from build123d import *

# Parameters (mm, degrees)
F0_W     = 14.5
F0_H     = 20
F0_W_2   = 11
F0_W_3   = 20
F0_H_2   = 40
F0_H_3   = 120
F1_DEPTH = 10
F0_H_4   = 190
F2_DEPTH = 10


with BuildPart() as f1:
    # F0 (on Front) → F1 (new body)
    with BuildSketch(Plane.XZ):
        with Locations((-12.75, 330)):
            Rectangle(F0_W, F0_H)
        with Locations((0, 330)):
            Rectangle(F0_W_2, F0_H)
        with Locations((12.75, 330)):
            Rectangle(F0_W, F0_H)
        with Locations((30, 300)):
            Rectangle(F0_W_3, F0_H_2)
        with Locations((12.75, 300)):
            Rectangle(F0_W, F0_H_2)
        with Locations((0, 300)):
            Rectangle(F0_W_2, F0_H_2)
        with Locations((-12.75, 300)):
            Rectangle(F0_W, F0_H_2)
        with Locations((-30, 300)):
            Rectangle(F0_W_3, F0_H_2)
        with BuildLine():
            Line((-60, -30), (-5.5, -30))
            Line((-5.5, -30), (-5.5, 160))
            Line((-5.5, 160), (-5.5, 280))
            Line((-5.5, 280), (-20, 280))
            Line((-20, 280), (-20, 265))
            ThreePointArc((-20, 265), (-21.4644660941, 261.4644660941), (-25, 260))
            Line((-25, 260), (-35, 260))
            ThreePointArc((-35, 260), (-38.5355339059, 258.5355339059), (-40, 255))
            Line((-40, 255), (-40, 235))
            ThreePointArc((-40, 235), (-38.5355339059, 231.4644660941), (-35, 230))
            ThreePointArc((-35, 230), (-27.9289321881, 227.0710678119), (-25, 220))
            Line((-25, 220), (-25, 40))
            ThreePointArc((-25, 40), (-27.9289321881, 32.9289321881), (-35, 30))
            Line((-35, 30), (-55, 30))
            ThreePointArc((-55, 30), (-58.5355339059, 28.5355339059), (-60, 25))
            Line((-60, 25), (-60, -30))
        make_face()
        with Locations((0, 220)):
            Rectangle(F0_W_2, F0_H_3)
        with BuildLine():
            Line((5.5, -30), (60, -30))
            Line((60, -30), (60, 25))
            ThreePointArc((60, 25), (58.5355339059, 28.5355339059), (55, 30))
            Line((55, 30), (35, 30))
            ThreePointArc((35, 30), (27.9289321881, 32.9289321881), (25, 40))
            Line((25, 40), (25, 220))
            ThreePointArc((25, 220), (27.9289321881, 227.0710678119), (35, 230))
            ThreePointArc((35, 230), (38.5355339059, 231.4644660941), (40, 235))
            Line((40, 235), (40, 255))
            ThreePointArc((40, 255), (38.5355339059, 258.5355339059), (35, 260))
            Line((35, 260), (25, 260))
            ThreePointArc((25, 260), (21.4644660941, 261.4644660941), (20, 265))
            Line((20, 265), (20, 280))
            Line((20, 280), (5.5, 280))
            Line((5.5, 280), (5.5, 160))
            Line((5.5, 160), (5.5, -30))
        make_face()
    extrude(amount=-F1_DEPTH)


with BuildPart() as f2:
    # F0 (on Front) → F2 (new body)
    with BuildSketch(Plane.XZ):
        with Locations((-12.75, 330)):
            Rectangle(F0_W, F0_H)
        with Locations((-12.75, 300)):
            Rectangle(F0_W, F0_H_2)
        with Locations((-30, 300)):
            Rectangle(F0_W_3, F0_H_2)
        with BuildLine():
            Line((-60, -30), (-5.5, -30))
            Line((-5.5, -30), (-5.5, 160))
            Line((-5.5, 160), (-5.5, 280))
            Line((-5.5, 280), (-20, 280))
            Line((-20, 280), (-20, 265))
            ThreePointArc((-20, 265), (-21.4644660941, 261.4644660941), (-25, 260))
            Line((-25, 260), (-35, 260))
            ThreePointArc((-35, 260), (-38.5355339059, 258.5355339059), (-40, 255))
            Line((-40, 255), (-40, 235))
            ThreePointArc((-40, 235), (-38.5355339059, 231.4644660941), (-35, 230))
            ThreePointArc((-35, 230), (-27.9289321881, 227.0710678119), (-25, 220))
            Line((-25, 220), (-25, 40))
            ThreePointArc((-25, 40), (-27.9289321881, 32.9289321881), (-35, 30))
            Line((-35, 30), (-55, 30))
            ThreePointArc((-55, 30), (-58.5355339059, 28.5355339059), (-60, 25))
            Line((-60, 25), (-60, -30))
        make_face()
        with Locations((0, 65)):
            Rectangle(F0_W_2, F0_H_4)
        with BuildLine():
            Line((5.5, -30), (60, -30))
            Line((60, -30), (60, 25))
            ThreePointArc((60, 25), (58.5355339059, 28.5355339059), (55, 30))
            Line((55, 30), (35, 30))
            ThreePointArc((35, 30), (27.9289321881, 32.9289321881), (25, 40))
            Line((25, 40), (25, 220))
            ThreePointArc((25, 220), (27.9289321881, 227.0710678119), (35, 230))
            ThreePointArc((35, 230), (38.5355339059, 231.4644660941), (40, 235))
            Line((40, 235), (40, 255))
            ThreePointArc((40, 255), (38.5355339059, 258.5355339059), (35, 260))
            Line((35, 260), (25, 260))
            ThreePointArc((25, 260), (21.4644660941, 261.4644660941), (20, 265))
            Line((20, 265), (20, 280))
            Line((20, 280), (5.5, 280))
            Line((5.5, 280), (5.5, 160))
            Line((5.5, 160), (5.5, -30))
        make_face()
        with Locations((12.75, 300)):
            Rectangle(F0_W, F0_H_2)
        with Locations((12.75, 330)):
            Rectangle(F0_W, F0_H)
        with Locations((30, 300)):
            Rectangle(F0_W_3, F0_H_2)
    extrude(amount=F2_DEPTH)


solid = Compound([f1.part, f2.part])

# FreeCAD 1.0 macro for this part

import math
import FreeCAD as App
import Part
import Sketcher

V = App.Vector

doc = App.newDocument("Part")
params = doc.addObject("Spreadsheet::Sheet", "Params")
for row, (alias, value) in enumerate([
    ("sketch1_radius", "5 mm"),
    ("sketch1_radius2", "10 mm"),
    ("sketch1_width", "11 mm"),
    ("sketch1_width2", "40 mm"),
    ("sketch1_height", "15 mm"),
    ("pad1_length", "10 mm"),
    ("sketch2_radius", "5 mm"),
    ("sketch2_radius2", "10 mm"),
    ("sketch2_width", "120 mm"),
    ("sketch2_width2", "11 mm"),
    ("sketch2_height", "40 mm"),
    ("pad2_length", "10 mm"),
], start=1):
    params.set(f"A{row}", alias)
    params.set(f"B{row}", "=" + value)
    params.setAlias(f"B{row}", alias)

body = doc.addObject("PartDesign::Body", "Body")

# Sketch on XZ plane
sketch1 = body.newObject("Sketcher::SketchObject", "Sketch")
sketch1.AttachmentSupport = (doc.getObject("XZ_Plane"), [""])
sketch1.MapMode = "FlatFace"
sketch1.addGeometry([
    Part.LineSegment(V(-20, 340, 0), V(-20, 320, 0)),  # 0
    Part.LineSegment(V(-20, 320, 0), V(-40, 320, 0)),  # 1
    Part.LineSegment(V(-40, 320, 0), V(-40, 280, 0)),  # 2
    Part.LineSegment(V(-40, 280, 0), V(-20, 280, 0)),  # 3
    Part.LineSegment(V(-20, 280, 0), V(-20, 265, 0)),  # 4
    Part.ArcOfCircle(Part.Circle(V(-25, 265, 0), V(0, 0, 1), 5), math.radians(-90), math.radians(0)),  # 5
    Part.LineSegment(V(-25, 260, 0), V(-35, 260, 0)),  # 6
    Part.ArcOfCircle(Part.Circle(V(-35, 255, 0), V(0, 0, 1), 5), math.radians(90), math.radians(180)),  # 7
    Part.LineSegment(V(-40, 255, 0), V(-40, 235, 0)),  # 8
    Part.ArcOfCircle(Part.Circle(V(-35, 235, 0), V(0, 0, 1), 5), math.radians(180), math.radians(270)),  # 9
    Part.ArcOfCircle(Part.Circle(V(-35, 220, 0), V(0, 0, 1), 10), math.radians(0), math.radians(90)),  # 10
    Part.LineSegment(V(-25, 220, 0), V(-25, 40, 0)),  # 11
    Part.ArcOfCircle(Part.Circle(V(-35, 40, 0), V(0, 0, 1), 10), math.radians(-90), math.radians(0)),  # 12
    Part.LineSegment(V(-35, 30, 0), V(-55, 30, 0)),  # 13
    Part.ArcOfCircle(Part.Circle(V(-55, 25, 0), V(0, 0, 1), 5), math.radians(90), math.radians(180)),  # 14
    Part.LineSegment(V(-60, 25, 0), V(-60, -30, 0)),  # 15
    Part.LineSegment(V(-60, -30, 0), V(-6, -30, 0)),  # 16
    Part.LineSegment(V(-6, -30, 0), V(-6, 160, 0)),  # 17
    Part.LineSegment(V(-6, 160, 0), V(6, 160, 0)),  # 18
    Part.LineSegment(V(6, 160, 0), V(6, -30, 0)),  # 19
    Part.LineSegment(V(6, -30, 0), V(60, -30, 0)),  # 20
    Part.LineSegment(V(60, -30, 0), V(60, 25, 0)),  # 21
    Part.ArcOfCircle(Part.Circle(V(55, 25, 0), V(0, 0, 1), 5), math.radians(0), math.radians(90)),  # 22
    Part.LineSegment(V(55, 30, 0), V(35, 30, 0)),  # 23
    Part.ArcOfCircle(Part.Circle(V(35, 40, 0), V(0, 0, 1), 10), math.radians(180), math.radians(270)),  # 24
    Part.LineSegment(V(25, 40, 0), V(25, 220, 0)),  # 25
    Part.ArcOfCircle(Part.Circle(V(35, 220, 0), V(0, 0, 1), 10), math.radians(90), math.radians(180)),  # 26
    Part.ArcOfCircle(Part.Circle(V(35, 235, 0), V(0, 0, 1), 5), math.radians(-90), math.radians(0)),  # 27
    Part.LineSegment(V(40, 235, 0), V(40, 255, 0)),  # 28
    Part.ArcOfCircle(Part.Circle(V(35, 255, 0), V(0, 0, 1), 5), math.radians(0), math.radians(90)),  # 29
    Part.LineSegment(V(35, 260, 0), V(25, 260, 0)),  # 30
    Part.ArcOfCircle(Part.Circle(V(25, 265, 0), V(0, 0, 1), 5), math.radians(180), math.radians(270)),  # 31
    Part.LineSegment(V(20, 265, 0), V(20, 280, 0)),  # 32
    Part.LineSegment(V(20, 280, 0), V(40, 280, 0)),  # 33
    Part.LineSegment(V(40, 280, 0), V(40, 320, 0)),  # 34
    Part.LineSegment(V(40, 320, 0), V(20, 320, 0)),  # 35
    Part.LineSegment(V(20, 320, 0), V(20, 340, 0)),  # 36
    Part.LineSegment(V(20, 340, 0), V(-20, 340, 0)),  # 37
], False)
sketch1.addConstraint([
    Sketcher.Constraint("Coincident", 0, 2, 1, 1),
    Sketcher.Constraint("Coincident", 1, 2, 2, 1),
    Sketcher.Constraint("Coincident", 2, 2, 3, 1),
    Sketcher.Constraint("Coincident", 3, 2, 4, 1),
    Sketcher.Constraint("Tangent", 4, 2, 5, 2),
    Sketcher.Constraint("Tangent", 5, 1, 6, 1),
    Sketcher.Constraint("Tangent", 6, 2, 7, 1),
    Sketcher.Constraint("Tangent", 7, 2, 8, 1),
    Sketcher.Constraint("Tangent", 8, 2, 9, 1),
    Sketcher.Constraint("Tangent", 9, 2, 10, 2),
    Sketcher.Constraint("Tangent", 10, 1, 11, 1),
    Sketcher.Constraint("Tangent", 11, 2, 12, 2),
    Sketcher.Constraint("Tangent", 12, 1, 13, 1),
    Sketcher.Constraint("Tangent", 13, 2, 14, 1),
    Sketcher.Constraint("Tangent", 14, 2, 15, 1),
    Sketcher.Constraint("Coincident", 15, 2, 16, 1),
    Sketcher.Constraint("Coincident", 16, 2, 17, 1),
    Sketcher.Constraint("Coincident", 17, 2, 18, 1),
    Sketcher.Constraint("Coincident", 18, 2, 19, 1),
    Sketcher.Constraint("Coincident", 19, 2, 20, 1),
    Sketcher.Constraint("Coincident", 20, 2, 21, 1),
    Sketcher.Constraint("Tangent", 21, 2, 22, 1),
    Sketcher.Constraint("Tangent", 22, 2, 23, 1),
    Sketcher.Constraint("Tangent", 23, 2, 24, 2),
    Sketcher.Constraint("Tangent", 24, 1, 25, 1),
    Sketcher.Constraint("Tangent", 25, 2, 26, 2),
    Sketcher.Constraint("Tangent", 26, 1, 27, 1),
    Sketcher.Constraint("Tangent", 27, 2, 28, 1),
    Sketcher.Constraint("Tangent", 28, 2, 29, 1),
    Sketcher.Constraint("Tangent", 29, 2, 30, 1),
    Sketcher.Constraint("Tangent", 30, 2, 31, 2),
    Sketcher.Constraint("Tangent", 31, 1, 32, 1),
    Sketcher.Constraint("Coincident", 32, 2, 33, 1),
    Sketcher.Constraint("Coincident", 33, 2, 34, 1),
    Sketcher.Constraint("Coincident", 34, 2, 35, 1),
    Sketcher.Constraint("Coincident", 35, 2, 36, 1),
    Sketcher.Constraint("Coincident", 36, 2, 37, 1),
    Sketcher.Constraint("Coincident", 37, 2, 0, 1),
    Sketcher.Constraint("Vertical", 0),
    Sketcher.Constraint("Horizontal", 1),
    Sketcher.Constraint("Vertical", 2),
    Sketcher.Constraint("Horizontal", 3),
    Sketcher.Constraint("Vertical", 4),
    Sketcher.Constraint("Horizontal", 6),
    Sketcher.Constraint("Vertical", 8),
    Sketcher.Constraint("Vertical", 11),
    Sketcher.Constraint("Horizontal", 13),
    Sketcher.Constraint("Vertical", 15),
    Sketcher.Constraint("Horizontal", 16),
    Sketcher.Constraint("Vertical", 17),
    Sketcher.Constraint("Horizontal", 18),
    Sketcher.Constraint("Vertical", 19),
    Sketcher.Constraint("Horizontal", 20),
    Sketcher.Constraint("Vertical", 21),
    Sketcher.Constraint("Horizontal", 23),
    Sketcher.Constraint("Vertical", 25),
    Sketcher.Constraint("Vertical", 28),
    Sketcher.Constraint("Horizontal", 30),
    Sketcher.Constraint("Vertical", 32),
    Sketcher.Constraint("Horizontal", 33),
    Sketcher.Constraint("Vertical", 34),
    Sketcher.Constraint("Horizontal", 35),
    Sketcher.Constraint("Vertical", 36),
    Sketcher.Constraint("Horizontal", 37),
    Sketcher.Constraint("Equal", 5, 7),
    Sketcher.Constraint("Equal", 7, 9),
    Sketcher.Constraint("Equal", 10, 12),
    Sketcher.Constraint("Equal", 9, 14),
    Sketcher.Constraint("Equal", 14, 22),
    Sketcher.Constraint("Equal", 12, 24),
    Sketcher.Constraint("Equal", 24, 26),
    Sketcher.Constraint("Equal", 22, 27),
    Sketcher.Constraint("Equal", 27, 29),
    Sketcher.Constraint("Equal", 29, 31),
    Sketcher.Constraint("Symmetric", 14, 3, 22, 3, -2),
    Sketcher.Constraint("Symmetric", 10, 3, 26, 3, -2),
    Sketcher.Constraint("Symmetric", 7, 3, 29, 3, -2),
    Sketcher.Constraint("Symmetric", 16, 2, 19, 2, -2),
    Sketcher.Constraint("Symmetric", 3, 2, 32, 2, -2),
    Sketcher.Constraint("Symmetric", 1, 2, 34, 2, -2),
    Sketcher.Constraint("Vertical", 9, 3, 10, 3),
    Sketcher.Constraint("Vertical", 0, 2, 3, 2),
    Sketcher.Constraint("Vertical", 2, 2, 7, 2),
    Sketcher.Constraint("Vertical", 5, 1, 10, 1),
    Sketcher.Constraint("Vertical", 32, 2, 35, 2),
    Sketcher.Constraint("Equal", 3, 13),
    Sketcher.Constraint("Equal", 35, 0),
    Sketcher.Constraint("Equal", 37, 2),
    Sketcher.Constraint("Equal", 0, 8),
    Sketcher.Constraint("Radius", 5, 5.0),
    Sketcher.Constraint("Radius", 10, 10.0),
    Sketcher.Constraint("DistanceX", 18, 1, 18, 2, 11.0),
    Sketcher.Constraint("DistanceX", 37, 2, 37, 1, 40.0),
    Sketcher.Constraint("DistanceY", 4, 2, 4, 1, 15.0),
    Sketcher.Constraint("DistanceY", 11, 2, 11, 1, 180.0),
    Sketcher.Constraint("DistanceY", 15, 2, 15, 1, 55.0),
    Sketcher.Constraint("DistanceY", 17, 1, 17, 2, 190.0),
    Sketcher.Constraint("DistanceY", -1, 1, 5, 3, 265.0),
])
sketch1.setExpression("Constraints[89]", "Params.sketch1_radius")
sketch1.setExpression("Constraints[90]", "Params.sketch1_radius2")
sketch1.setExpression("Constraints[91]", "Params.sketch1_width")
sketch1.setExpression("Constraints[92]", "Params.sketch1_width2")
sketch1.setExpression("Constraints[93]", "Params.sketch1_height")
pad1 = body.newObject("PartDesign::Pad", "Pad")
pad1.Profile = sketch1
pad1.setExpression("Length", "Params.pad1_length")
pad1.Reversed = True
body2 = doc.addObject("PartDesign::Body", "Body001")

# Sketch on XZ plane
sketch2 = body2.newObject("Sketcher::SketchObject", "Sketch001")
sketch2.AttachmentSupport = (doc.getObject("XZ_Plane001"), [""])
sketch2.MapMode = "FlatFace"
sketch2.addGeometry([
    Part.LineSegment(V(-20, 340, 0), V(-20, 320, 0)),  # 0
    Part.LineSegment(V(-20, 320, 0), V(-40, 320, 0)),  # 1
    Part.LineSegment(V(-40, 320, 0), V(-40, 280, 0)),  # 2
    Part.LineSegment(V(-40, 280, 0), V(-20, 280, 0)),  # 3
    Part.LineSegment(V(-20, 280, 0), V(-20, 265, 0)),  # 4
    Part.ArcOfCircle(Part.Circle(V(-25, 265, 0), V(0, 0, 1), 5), math.radians(-90), math.radians(0)),  # 5
    Part.LineSegment(V(-25, 260, 0), V(-35, 260, 0)),  # 6
    Part.ArcOfCircle(Part.Circle(V(-35, 255, 0), V(0, 0, 1), 5), math.radians(90), math.radians(180)),  # 7
    Part.LineSegment(V(-40, 255, 0), V(-40, 235, 0)),  # 8
    Part.ArcOfCircle(Part.Circle(V(-35, 235, 0), V(0, 0, 1), 5), math.radians(180), math.radians(270)),  # 9
    Part.ArcOfCircle(Part.Circle(V(-35, 220, 0), V(0, 0, 1), 10), math.radians(0), math.radians(90)),  # 10
    Part.LineSegment(V(-25, 220, 0), V(-25, 40, 0)),  # 11
    Part.ArcOfCircle(Part.Circle(V(-35, 40, 0), V(0, 0, 1), 10), math.radians(-90), math.radians(0)),  # 12
    Part.LineSegment(V(-35, 30, 0), V(-55, 30, 0)),  # 13
    Part.ArcOfCircle(Part.Circle(V(-55, 25, 0), V(0, 0, 1), 5), math.radians(90), math.radians(180)),  # 14
    Part.LineSegment(V(-60, 25, 0), V(-60, -30, 0)),  # 15
    Part.LineSegment(V(-60, -30, 0), V(60, -30, 0)),  # 16
    Part.LineSegment(V(60, -30, 0), V(60, 25, 0)),  # 17
    Part.ArcOfCircle(Part.Circle(V(55, 25, 0), V(0, 0, 1), 5), math.radians(0), math.radians(90)),  # 18
    Part.LineSegment(V(55, 30, 0), V(35, 30, 0)),  # 19
    Part.ArcOfCircle(Part.Circle(V(35, 40, 0), V(0, 0, 1), 10), math.radians(180), math.radians(270)),  # 20
    Part.LineSegment(V(25, 40, 0), V(25, 220, 0)),  # 21
    Part.ArcOfCircle(Part.Circle(V(35, 220, 0), V(0, 0, 1), 10), math.radians(90), math.radians(180)),  # 22
    Part.ArcOfCircle(Part.Circle(V(35, 235, 0), V(0, 0, 1), 5), math.radians(-90), math.radians(0)),  # 23
    Part.LineSegment(V(40, 235, 0), V(40, 255, 0)),  # 24
    Part.ArcOfCircle(Part.Circle(V(35, 255, 0), V(0, 0, 1), 5), math.radians(0), math.radians(90)),  # 25
    Part.LineSegment(V(35, 260, 0), V(25, 260, 0)),  # 26
    Part.ArcOfCircle(Part.Circle(V(25, 265, 0), V(0, 0, 1), 5), math.radians(180), math.radians(270)),  # 27
    Part.LineSegment(V(20, 265, 0), V(20, 280, 0)),  # 28
    Part.LineSegment(V(20, 280, 0), V(40, 280, 0)),  # 29
    Part.LineSegment(V(40, 280, 0), V(40, 320, 0)),  # 30
    Part.LineSegment(V(40, 320, 0), V(20, 320, 0)),  # 31
    Part.LineSegment(V(20, 320, 0), V(20, 340, 0)),  # 32
    Part.LineSegment(V(20, 340, 0), V(6, 340, 0)),  # 33
    Part.LineSegment(V(6, 340, 0), V(6, 160, 0)),  # 34
    Part.LineSegment(V(6, 160, 0), V(-6, 160, 0)),  # 35
    Part.LineSegment(V(-6, 160, 0), V(-6, 340, 0)),  # 36
    Part.LineSegment(V(-6, 340, 0), V(-20, 340, 0)),  # 37
], False)
sketch2.addConstraint([
    Sketcher.Constraint("Coincident", 0, 2, 1, 1),
    Sketcher.Constraint("Coincident", 1, 2, 2, 1),
    Sketcher.Constraint("Coincident", 2, 2, 3, 1),
    Sketcher.Constraint("Coincident", 3, 2, 4, 1),
    Sketcher.Constraint("Tangent", 4, 2, 5, 2),
    Sketcher.Constraint("Tangent", 5, 1, 6, 1),
    Sketcher.Constraint("Tangent", 6, 2, 7, 1),
    Sketcher.Constraint("Tangent", 7, 2, 8, 1),
    Sketcher.Constraint("Tangent", 8, 2, 9, 1),
    Sketcher.Constraint("Tangent", 9, 2, 10, 2),
    Sketcher.Constraint("Tangent", 10, 1, 11, 1),
    Sketcher.Constraint("Tangent", 11, 2, 12, 2),
    Sketcher.Constraint("Tangent", 12, 1, 13, 1),
    Sketcher.Constraint("Tangent", 13, 2, 14, 1),
    Sketcher.Constraint("Tangent", 14, 2, 15, 1),
    Sketcher.Constraint("Coincident", 15, 2, 16, 1),
    Sketcher.Constraint("Coincident", 16, 2, 17, 1),
    Sketcher.Constraint("Tangent", 17, 2, 18, 1),
    Sketcher.Constraint("Tangent", 18, 2, 19, 1),
    Sketcher.Constraint("Tangent", 19, 2, 20, 2),
    Sketcher.Constraint("Tangent", 20, 1, 21, 1),
    Sketcher.Constraint("Tangent", 21, 2, 22, 2),
    Sketcher.Constraint("Tangent", 22, 1, 23, 1),
    Sketcher.Constraint("Tangent", 23, 2, 24, 1),
    Sketcher.Constraint("Tangent", 24, 2, 25, 1),
    Sketcher.Constraint("Tangent", 25, 2, 26, 1),
    Sketcher.Constraint("Tangent", 26, 2, 27, 2),
    Sketcher.Constraint("Tangent", 27, 1, 28, 1),
    Sketcher.Constraint("Coincident", 28, 2, 29, 1),
    Sketcher.Constraint("Coincident", 29, 2, 30, 1),
    Sketcher.Constraint("Coincident", 30, 2, 31, 1),
    Sketcher.Constraint("Coincident", 31, 2, 32, 1),
    Sketcher.Constraint("Coincident", 32, 2, 33, 1),
    Sketcher.Constraint("Coincident", 33, 2, 34, 1),
    Sketcher.Constraint("Coincident", 34, 2, 35, 1),
    Sketcher.Constraint("Coincident", 35, 2, 36, 1),
    Sketcher.Constraint("Coincident", 36, 2, 37, 1),
    Sketcher.Constraint("Coincident", 37, 2, 0, 1),
    Sketcher.Constraint("Vertical", 0),
    Sketcher.Constraint("Horizontal", 1),
    Sketcher.Constraint("Vertical", 2),
    Sketcher.Constraint("Horizontal", 3),
    Sketcher.Constraint("Vertical", 4),
    Sketcher.Constraint("Horizontal", 6),
    Sketcher.Constraint("Vertical", 8),
    Sketcher.Constraint("Vertical", 11),
    Sketcher.Constraint("Horizontal", 13),
    Sketcher.Constraint("Vertical", 15),
    Sketcher.Constraint("Horizontal", 16),
    Sketcher.Constraint("Vertical", 17),
    Sketcher.Constraint("Horizontal", 19),
    Sketcher.Constraint("Vertical", 21),
    Sketcher.Constraint("Vertical", 24),
    Sketcher.Constraint("Horizontal", 26),
    Sketcher.Constraint("Vertical", 28),
    Sketcher.Constraint("Horizontal", 29),
    Sketcher.Constraint("Vertical", 30),
    Sketcher.Constraint("Horizontal", 31),
    Sketcher.Constraint("Vertical", 32),
    Sketcher.Constraint("Horizontal", 33),
    Sketcher.Constraint("Vertical", 34),
    Sketcher.Constraint("Horizontal", 35),
    Sketcher.Constraint("Vertical", 36),
    Sketcher.Constraint("Horizontal", 37),
    Sketcher.Constraint("Equal", 5, 7),
    Sketcher.Constraint("Equal", 7, 9),
    Sketcher.Constraint("Equal", 10, 12),
    Sketcher.Constraint("Equal", 9, 14),
    Sketcher.Constraint("Equal", 14, 18),
    Sketcher.Constraint("Equal", 12, 20),
    Sketcher.Constraint("Equal", 20, 22),
    Sketcher.Constraint("Equal", 18, 23),
    Sketcher.Constraint("Equal", 23, 25),
    Sketcher.Constraint("Equal", 25, 27),
    Sketcher.Constraint("Symmetric", 14, 3, 18, 3, -2),
    Sketcher.Constraint("Symmetric", 10, 3, 22, 3, -2),
    Sketcher.Constraint("Symmetric", 7, 3, 25, 3, -2),
    Sketcher.Constraint("Symmetric", 3, 2, 28, 2, -2),
    Sketcher.Constraint("Symmetric", 1, 2, 30, 2, -2),
    Sketcher.Constraint("Symmetric", 33, 2, 36, 2, -2),
    Sketcher.Constraint("Vertical", 9, 3, 10, 3),
    Sketcher.Constraint("Vertical", 0, 2, 3, 2),
    Sketcher.Constraint("Vertical", 2, 2, 7, 2),
    Sketcher.Constraint("Vertical", 5, 1, 10, 1),
    Sketcher.Constraint("Vertical", 28, 2, 31, 2),
    Sketcher.Constraint("Equal", 3, 13),
    Sketcher.Constraint("Equal", 31, 0),
    Sketcher.Constraint("Equal", 0, 8),
    Sketcher.Constraint("Equal", 21, 34),
    Sketcher.Constraint("Radius", 5, 5.0),
    Sketcher.Constraint("Radius", 10, 10.0),
    Sketcher.Constraint("DistanceX", 16, 1, 16, 2, 120.0),
    Sketcher.Constraint("DistanceX", 35, 2, 35, 1, 11.0),
    Sketcher.Constraint("DistanceY", 2, 2, 2, 1, 40.0),
    Sketcher.Constraint("DistanceY", 4, 2, 4, 1, 15.0),
    Sketcher.Constraint("DistanceY", 11, 2, 11, 1, 180.0),
    Sketcher.Constraint("DistanceY", 15, 2, 15, 1, 55.0),
    Sketcher.Constraint("DistanceY", -1, 1, 5, 3, 265.0),
])
sketch2.setExpression("Constraints[89]", "Params.sketch2_radius")
sketch2.setExpression("Constraints[90]", "Params.sketch2_radius2")
sketch2.setExpression("Constraints[91]", "Params.sketch2_width")
sketch2.setExpression("Constraints[92]", "Params.sketch2_width2")
sketch2.setExpression("Constraints[93]", "Params.sketch2_height")
pad2 = body2.newObject("PartDesign::Pad", "Pad001")
pad2.Profile = sketch2
pad2.setExpression("Length", "Params.pad2_length")

doc.recompute()
